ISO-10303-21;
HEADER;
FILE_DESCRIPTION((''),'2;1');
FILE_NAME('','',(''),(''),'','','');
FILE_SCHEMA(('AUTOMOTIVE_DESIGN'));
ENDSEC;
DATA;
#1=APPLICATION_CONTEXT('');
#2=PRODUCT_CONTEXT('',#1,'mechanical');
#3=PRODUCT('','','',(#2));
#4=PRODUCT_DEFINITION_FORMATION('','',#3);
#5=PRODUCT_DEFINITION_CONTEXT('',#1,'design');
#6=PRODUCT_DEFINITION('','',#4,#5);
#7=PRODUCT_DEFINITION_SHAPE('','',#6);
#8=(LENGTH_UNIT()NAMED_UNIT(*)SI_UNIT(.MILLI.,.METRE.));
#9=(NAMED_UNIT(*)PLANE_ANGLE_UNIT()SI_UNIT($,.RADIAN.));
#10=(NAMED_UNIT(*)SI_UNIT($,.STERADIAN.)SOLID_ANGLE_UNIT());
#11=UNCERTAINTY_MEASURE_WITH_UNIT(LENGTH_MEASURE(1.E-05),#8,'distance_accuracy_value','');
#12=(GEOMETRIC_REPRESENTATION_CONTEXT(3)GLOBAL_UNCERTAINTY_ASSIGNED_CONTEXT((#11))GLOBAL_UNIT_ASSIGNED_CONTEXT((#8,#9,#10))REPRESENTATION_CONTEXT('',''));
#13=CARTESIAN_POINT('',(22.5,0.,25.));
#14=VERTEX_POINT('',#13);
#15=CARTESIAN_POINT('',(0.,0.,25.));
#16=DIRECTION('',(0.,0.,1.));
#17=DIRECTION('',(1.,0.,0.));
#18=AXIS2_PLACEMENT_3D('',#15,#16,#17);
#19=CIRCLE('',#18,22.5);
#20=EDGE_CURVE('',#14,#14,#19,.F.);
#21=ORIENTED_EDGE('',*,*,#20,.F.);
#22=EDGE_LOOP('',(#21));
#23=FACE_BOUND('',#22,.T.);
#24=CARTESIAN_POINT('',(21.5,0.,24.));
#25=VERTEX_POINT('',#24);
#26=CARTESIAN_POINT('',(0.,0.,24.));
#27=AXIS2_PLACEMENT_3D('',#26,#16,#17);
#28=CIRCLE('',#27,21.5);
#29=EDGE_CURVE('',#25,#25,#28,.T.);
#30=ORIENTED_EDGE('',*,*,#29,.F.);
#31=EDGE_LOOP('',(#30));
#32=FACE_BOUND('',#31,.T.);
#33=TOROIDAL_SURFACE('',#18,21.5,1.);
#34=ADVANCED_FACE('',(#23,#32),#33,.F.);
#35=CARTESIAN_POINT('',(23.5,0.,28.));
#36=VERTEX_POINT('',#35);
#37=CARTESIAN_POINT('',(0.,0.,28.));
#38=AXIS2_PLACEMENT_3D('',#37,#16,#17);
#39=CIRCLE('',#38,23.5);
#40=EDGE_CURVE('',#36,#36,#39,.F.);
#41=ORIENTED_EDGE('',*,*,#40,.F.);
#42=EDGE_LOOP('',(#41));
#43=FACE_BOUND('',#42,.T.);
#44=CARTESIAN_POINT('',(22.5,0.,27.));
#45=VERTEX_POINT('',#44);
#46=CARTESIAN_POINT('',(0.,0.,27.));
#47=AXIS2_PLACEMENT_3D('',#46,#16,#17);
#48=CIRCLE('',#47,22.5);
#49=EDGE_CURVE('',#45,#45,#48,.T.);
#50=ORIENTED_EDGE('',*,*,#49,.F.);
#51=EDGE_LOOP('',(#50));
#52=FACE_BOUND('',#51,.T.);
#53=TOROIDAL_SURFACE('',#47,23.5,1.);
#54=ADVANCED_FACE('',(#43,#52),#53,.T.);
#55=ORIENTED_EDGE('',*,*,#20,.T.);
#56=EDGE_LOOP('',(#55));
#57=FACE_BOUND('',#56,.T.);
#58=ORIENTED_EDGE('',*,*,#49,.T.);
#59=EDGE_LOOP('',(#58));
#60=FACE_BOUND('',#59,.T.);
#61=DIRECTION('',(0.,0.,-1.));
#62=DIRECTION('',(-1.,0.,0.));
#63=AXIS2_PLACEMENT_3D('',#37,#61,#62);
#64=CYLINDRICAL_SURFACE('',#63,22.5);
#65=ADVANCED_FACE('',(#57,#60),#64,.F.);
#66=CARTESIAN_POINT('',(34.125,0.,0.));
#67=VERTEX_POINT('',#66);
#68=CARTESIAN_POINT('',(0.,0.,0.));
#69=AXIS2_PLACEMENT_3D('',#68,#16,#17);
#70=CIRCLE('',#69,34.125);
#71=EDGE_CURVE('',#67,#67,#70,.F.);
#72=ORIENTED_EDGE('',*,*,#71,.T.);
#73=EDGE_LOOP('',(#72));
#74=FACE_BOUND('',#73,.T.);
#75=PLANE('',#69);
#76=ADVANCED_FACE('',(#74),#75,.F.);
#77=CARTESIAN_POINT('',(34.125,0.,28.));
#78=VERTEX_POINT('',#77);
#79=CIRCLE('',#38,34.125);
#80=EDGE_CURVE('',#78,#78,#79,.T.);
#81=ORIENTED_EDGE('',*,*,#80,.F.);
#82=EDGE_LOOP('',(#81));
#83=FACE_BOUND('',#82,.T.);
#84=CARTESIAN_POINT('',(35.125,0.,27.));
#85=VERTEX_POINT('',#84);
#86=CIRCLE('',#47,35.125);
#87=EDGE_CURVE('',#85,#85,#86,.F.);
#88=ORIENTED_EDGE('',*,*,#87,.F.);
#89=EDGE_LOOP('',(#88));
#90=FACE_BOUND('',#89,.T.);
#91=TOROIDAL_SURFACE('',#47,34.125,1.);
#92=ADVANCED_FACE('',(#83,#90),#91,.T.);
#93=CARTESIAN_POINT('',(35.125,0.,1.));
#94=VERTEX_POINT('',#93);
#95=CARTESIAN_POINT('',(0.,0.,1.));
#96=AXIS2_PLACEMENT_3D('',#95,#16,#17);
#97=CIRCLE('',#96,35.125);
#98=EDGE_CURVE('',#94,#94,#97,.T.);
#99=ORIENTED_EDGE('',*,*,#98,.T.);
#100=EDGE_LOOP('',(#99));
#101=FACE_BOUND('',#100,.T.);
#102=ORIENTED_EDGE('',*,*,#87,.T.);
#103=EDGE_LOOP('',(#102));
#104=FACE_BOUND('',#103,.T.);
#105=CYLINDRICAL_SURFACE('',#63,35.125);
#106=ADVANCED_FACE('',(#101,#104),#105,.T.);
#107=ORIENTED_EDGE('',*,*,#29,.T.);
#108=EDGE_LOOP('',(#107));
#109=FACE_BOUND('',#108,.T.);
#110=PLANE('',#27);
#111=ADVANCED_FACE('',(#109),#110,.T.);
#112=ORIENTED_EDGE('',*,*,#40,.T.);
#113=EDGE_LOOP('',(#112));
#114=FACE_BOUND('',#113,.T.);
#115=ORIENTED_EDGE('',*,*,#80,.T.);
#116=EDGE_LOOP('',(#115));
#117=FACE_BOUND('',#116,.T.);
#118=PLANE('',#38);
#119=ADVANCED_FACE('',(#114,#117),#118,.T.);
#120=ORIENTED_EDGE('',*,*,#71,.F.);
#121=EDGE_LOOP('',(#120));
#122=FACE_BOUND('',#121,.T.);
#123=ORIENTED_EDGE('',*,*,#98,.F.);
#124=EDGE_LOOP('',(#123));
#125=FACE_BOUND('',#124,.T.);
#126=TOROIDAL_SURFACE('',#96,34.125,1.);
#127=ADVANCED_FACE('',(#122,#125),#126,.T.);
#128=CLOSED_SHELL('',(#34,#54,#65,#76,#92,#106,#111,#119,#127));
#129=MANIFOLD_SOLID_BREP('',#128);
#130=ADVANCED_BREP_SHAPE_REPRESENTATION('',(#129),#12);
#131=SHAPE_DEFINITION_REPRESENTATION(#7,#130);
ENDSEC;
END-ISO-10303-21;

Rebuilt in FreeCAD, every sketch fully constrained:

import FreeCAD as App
import Part
import Sketcher
from FreeCAD import Vector


def edges_at(feature, points):
    """Names of the edges that pass closest to the given points."""
    edges = feature.Shape.Edges
    near = lambda p: min(range(len(edges)), key=lambda i: edges[i].distToShape(Part.Vertex(*p))[0])
    return sorted({f"Edge{near(p) + 1}" for p in points})

doc = App.newDocument("Part")
body = doc.addObject("PartDesign::Body", "Body")

# Sketch on XY plane
sketch1 = body.newObject("Sketcher::SketchObject", "Sketch")
sketch1.AttachmentSupport = (doc.getObject("XY_Plane"), [""])
sketch1.MapMode = "FlatFace"
sketch1.addGeometry(Part.Circle(Vector(0, 0, 0), Vector(0, 0, 1), 22), False)
sketch1.addConstraint([
    Sketcher.Constraint("Coincident", 0, 3, -1, 1),
    Sketcher.Constraint("Diameter", 0, 45.0),
])
pad1 = body.newObject("PartDesign::Pad", "Pad")
pad1.Profile = sketch1
pad1.Length = 24

# Sketch on XY plane
sketch2 = body.newObject("Sketcher::SketchObject", "Sketch001")
sketch2.AttachmentSupport = (doc.getObject("XY_Plane"), [""])
sketch2.MapMode = "FlatFace"
sketch2.addGeometry([
    Part.Circle(Vector(0, 0, 0), Vector(0, 0, 1), 35),
    Part.Circle(Vector(0, 0, 0), Vector(0, 0, 1), 22),
], False)
sketch2.addConstraint([
    Sketcher.Constraint("Coincident", 0, 3, -1, 1),
    Sketcher.Constraint("Coincident", 1, 3, -1, 1),
    Sketcher.Constraint("Diameter", 1, 45.0),
    Sketcher.Constraint("Diameter", 0, 70.25),
])
pad2 = body.newObject("PartDesign::Pad", "Pad001")
pad2.Profile = sketch2
pad2.Length = 28
doc.recompute()

fillet = body.newObject("PartDesign::Fillet", "Fillet")
fillet.Base = (pad2, edges_at(pad2, [
    (-35.125, 0, 28),
    (-35.125, 0, 0),
    (-22.5, 0, 24),
    (-22.5, 0, 28),
]))
fillet.Radius = 1

doc.recompute()
